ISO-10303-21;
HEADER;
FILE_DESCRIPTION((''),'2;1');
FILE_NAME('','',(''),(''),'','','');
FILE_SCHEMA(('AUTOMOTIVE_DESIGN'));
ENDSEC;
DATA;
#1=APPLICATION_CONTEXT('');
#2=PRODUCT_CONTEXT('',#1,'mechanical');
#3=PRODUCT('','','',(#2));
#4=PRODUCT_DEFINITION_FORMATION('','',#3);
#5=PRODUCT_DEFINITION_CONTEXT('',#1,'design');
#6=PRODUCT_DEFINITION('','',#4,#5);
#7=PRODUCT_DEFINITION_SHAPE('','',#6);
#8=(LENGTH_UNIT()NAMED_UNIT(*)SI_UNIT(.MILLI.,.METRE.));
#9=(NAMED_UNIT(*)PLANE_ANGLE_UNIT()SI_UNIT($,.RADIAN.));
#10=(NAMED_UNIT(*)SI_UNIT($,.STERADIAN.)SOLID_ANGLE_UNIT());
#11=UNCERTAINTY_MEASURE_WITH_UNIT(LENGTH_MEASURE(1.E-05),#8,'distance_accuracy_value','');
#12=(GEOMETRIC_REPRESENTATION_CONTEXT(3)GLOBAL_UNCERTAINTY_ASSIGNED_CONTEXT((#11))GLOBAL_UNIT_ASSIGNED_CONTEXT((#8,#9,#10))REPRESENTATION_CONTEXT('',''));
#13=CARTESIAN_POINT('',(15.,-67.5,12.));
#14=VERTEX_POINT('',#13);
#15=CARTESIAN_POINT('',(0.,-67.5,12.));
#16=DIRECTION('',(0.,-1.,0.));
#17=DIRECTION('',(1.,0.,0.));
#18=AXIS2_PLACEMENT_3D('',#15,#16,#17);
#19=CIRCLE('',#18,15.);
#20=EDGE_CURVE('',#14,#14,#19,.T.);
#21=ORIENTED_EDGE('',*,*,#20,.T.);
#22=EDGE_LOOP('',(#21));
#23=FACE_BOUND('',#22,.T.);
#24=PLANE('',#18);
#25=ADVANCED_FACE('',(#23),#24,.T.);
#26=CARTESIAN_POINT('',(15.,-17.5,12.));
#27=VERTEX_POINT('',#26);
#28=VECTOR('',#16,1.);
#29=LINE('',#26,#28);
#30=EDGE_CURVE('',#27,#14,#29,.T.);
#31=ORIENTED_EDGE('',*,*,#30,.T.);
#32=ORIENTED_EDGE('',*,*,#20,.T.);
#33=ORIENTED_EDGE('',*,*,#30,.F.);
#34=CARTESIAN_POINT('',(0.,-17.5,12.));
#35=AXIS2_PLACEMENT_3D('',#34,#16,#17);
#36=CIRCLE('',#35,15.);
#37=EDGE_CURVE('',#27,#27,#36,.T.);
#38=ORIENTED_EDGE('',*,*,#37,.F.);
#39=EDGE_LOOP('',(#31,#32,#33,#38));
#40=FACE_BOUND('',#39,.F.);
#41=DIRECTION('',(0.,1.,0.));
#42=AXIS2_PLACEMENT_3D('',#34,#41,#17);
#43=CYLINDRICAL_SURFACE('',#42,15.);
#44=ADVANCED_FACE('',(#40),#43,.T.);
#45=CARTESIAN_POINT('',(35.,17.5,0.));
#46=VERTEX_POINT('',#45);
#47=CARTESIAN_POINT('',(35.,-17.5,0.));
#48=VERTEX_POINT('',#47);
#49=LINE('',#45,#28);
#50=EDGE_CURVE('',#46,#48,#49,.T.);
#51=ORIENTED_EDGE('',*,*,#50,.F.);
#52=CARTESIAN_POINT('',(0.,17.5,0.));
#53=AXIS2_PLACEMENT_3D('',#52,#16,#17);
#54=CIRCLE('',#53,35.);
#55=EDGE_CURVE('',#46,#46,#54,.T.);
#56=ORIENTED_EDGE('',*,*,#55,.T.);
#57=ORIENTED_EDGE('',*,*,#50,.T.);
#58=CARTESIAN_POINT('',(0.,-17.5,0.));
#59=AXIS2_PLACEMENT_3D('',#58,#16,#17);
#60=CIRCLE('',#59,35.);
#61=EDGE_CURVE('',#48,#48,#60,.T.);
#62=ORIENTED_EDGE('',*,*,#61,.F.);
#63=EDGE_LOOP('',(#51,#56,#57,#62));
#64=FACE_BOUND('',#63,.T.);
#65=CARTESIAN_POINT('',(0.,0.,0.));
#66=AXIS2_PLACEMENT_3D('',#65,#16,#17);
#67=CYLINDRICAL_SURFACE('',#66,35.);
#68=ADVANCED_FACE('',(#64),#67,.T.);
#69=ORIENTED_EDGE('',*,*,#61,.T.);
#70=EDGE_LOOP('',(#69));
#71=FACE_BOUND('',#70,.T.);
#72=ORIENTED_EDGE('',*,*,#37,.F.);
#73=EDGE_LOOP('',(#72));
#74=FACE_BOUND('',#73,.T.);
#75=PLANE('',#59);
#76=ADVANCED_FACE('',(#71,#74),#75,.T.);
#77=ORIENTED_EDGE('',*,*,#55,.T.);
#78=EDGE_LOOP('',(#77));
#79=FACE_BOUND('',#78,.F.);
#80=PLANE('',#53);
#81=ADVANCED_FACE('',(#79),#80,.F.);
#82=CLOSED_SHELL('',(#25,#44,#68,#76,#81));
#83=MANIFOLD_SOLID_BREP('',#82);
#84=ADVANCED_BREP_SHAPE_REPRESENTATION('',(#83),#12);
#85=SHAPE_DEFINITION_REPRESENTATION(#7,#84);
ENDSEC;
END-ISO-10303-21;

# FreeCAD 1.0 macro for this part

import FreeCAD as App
import Part
import Sketcher

V = App.Vector

doc = App.newDocument("Part")
params = doc.addObject("Spreadsheet::Sheet", "Params")
for row, (alias, value) in enumerate([
    ("sketch1_diameter", "70 mm"),
    ("pad1_length", "35 mm"),
    ("sketch2_diameter", "30 mm"),
    ("pad2_length", "50 mm"),
], start=1):
    params.set(f"A{row}", alias)
    params.set(f"B{row}", "=" + value)
    params.setAlias(f"B{row}", alias)

body = doc.addObject("PartDesign::Body", "Body")

sketch1 = body.newObject("Sketcher::SketchObject", "Sketch")
sketch1.AttachmentSupport = (doc.getObject("XZ_Plane"), [""])
sketch1.MapMode = "FlatFace"
sketch1.addGeometry(Part.Circle(V(0, 0, 0), V(0, 0, 1), 35), False)
sketch1.addConstraint(Sketcher.Constraint("Coincident", 0, 3, -1, 1))
sketch1.addConstraint(Sketcher.Constraint("Diameter", 0, 70.0))
sketch1.setExpression("Constraints[1]", "Params.sketch1_diameter")
pad1 = body.newObject("PartDesign::Pad", "Pad")
pad1.Profile = sketch1
pad1.setExpression("Length", "Params.pad1_length")
pad1.Midplane = True

sketch2 = body.newObject("Sketcher::SketchObject", "Sketch001")
sketch2.AttachmentSupport = (doc.getObject("XZ_Plane"), [""])
sketch2.MapMode = "FlatFace"
sketch2.AttachmentOffset = App.Placement(V(0, 0, 17.5), App.Rotation())
sketch2.addGeometry(Part.Circle(V(0, 12, 0), V(0, 0, 1), 15), False)
sketch2.addConstraint(Sketcher.Constraint("PointOnObject", 0, 3, -2))
sketch2.addConstraint(Sketcher.Constraint("Diameter", 0, 30.0))
sketch2.addConstraint(Sketcher.Constraint("DistanceY", -1, 1, 0, 3, 12.0))
sketch2.setExpression("Constraints[1]", "Params.sketch2_diameter")
pad2 = body.newObject("PartDesign::Pad", "Pad001")
pad2.Profile = sketch2
pad2.setExpression("Length", "Params.pad2_length")

doc.recompute()
